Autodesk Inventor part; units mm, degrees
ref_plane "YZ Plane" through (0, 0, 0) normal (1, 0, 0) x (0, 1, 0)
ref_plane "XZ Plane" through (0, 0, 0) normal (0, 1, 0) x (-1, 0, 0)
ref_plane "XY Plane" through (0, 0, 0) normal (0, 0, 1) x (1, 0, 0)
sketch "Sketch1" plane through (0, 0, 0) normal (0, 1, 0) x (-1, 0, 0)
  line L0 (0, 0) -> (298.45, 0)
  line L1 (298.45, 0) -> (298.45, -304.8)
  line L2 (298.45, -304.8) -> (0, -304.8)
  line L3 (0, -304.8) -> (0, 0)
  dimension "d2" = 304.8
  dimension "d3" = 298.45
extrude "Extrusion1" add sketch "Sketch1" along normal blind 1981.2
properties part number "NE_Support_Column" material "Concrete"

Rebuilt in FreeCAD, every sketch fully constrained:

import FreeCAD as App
import Part
import Sketcher

V = App.Vector
Q = App.Units.Quantity

doc = App.newDocument("Part")
body = doc.addObject("PartDesign::Body", "Body")

sketch1 = body.newObject("Sketcher::SketchObject", "Sketch")
sketch1.AttachmentSupport = (doc.getObject("XZ_Plane"), [""])
sketch1.MapMode = "FlatFace"
sketch1.addGeometry(Part.LineSegment(V(-298.45, 0, 0), V(0, 0, 0)), False)
sketch1.addGeometry(Part.LineSegment(V(0, 0, 0), V(0, -304.8, 0)), False)
sketch1.addGeometry(Part.LineSegment(V(0, -304.8, 0), V(-298.45, -304.8, 0)), False)
sketch1.addGeometry(Part.LineSegment(V(-298.45, -304.8, 0), V(-298.45, 0, 0)), False)
sketch1.addConstraint(Sketcher.Constraint("Coincident", 0, 2, 1, 1))
sketch1.addConstraint(Sketcher.Constraint("Coincident", 1, 2, 2, 1))
sketch1.addConstraint(Sketcher.Constraint("Coincident", 2, 2, 3, 1))
sketch1.addConstraint(Sketcher.Constraint("Coincident", 3, 2, 0, 1))
sketch1.addConstraint(Sketcher.Constraint("Horizontal", 0))
sketch1.addConstraint(Sketcher.Constraint("Vertical", 1))
sketch1.addConstraint(Sketcher.Constraint("Horizontal", 2))
sketch1.addConstraint(Sketcher.Constraint("Vertical", 3))
sketch1.addConstraint(Sketcher.Constraint("Coincident", 0, 2, -1, 1))
sketch1.addConstraint(Sketcher.Constraint("DistanceY", 1, 2, 1, 1, Q("12 in")))
sketch1.addConstraint(Sketcher.Constraint("DistanceX", 0, 1, 0, 2, Q("11.75 in")))
pad1 = body.newObject("PartDesign::Pad", "Pad")
pad1.Profile = sketch1
pad1.Length = Q("78 in")
pad1.Reversed = True

doc.recompute()
